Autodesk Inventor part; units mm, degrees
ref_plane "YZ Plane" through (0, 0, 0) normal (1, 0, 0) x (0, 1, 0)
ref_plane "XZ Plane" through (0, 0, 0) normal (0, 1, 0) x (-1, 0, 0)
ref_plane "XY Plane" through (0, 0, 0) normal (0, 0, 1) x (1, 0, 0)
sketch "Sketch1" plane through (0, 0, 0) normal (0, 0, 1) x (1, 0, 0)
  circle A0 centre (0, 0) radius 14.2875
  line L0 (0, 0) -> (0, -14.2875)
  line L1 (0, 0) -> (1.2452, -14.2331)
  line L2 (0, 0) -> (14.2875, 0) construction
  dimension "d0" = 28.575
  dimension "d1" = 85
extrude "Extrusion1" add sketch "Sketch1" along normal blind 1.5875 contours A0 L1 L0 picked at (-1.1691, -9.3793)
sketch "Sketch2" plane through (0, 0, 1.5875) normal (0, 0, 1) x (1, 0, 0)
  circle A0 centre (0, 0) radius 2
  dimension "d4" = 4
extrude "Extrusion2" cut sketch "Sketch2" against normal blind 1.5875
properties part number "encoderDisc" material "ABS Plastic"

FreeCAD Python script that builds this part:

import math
import FreeCAD as App
import Part
import Sketcher

V = App.Vector
Q = App.Units.Quantity

doc = App.newDocument("Part")
body = doc.addObject("PartDesign::Body", "Body")

sketch1 = body.newObject("Sketcher::SketchObject", "Sketch")
sketch1.AttachmentSupport = (doc.getObject("XY_Plane"), [""])
sketch1.MapMode = "FlatFace"
sketch1.addGeometry(Part.ArcOfCircle(Part.Circle(V(0, 0, 0), V(0, 0, 1), 14.2875), math.radians(-85.000139), math.radians(270)), False)
sketch1.addGeometry(Part.LineSegment(V(0, -14.2875, 0), V(0, 0, 0)), False)
sketch1.addGeometry(Part.LineSegment(V(0, 0, 0), V(1.2452, -14.2331, 0)), False)
sketch1.addConstraint(Sketcher.Constraint("Coincident", 0, 2, 1, 1))
sketch1.addConstraint(Sketcher.Constraint("Coincident", 1, 2, 2, 1))
sketch1.addConstraint(Sketcher.Constraint("Coincident", 2, 2, 0, 1))
sketch1.addConstraint(Sketcher.Constraint("Vertical", 1))
sketch1.addConstraint(Sketcher.Constraint("Coincident", 0, 3, -1, 1))
sketch1.addConstraint(Sketcher.Constraint("Coincident", 1, 2, -1, 1))
sketch1.addConstraint(Sketcher.Constraint("Angle", 2, Q("-85.0001 deg")))
sketch1.addConstraint(Sketcher.Constraint("Radius", 0, Q("0.5625 in")))
pad1 = body.newObject("PartDesign::Pad", "Pad")
pad1.Profile = sketch1
pad1.Length = Q("0.0625 in")

sketch2 = body.newObject("Sketcher::SketchObject", "Sketch001")
sketch2.AttachmentSupport = (doc.getObject("XY_Plane"), [""])
sketch2.MapMode = "FlatFace"
sketch2.AttachmentOffset = App.Placement(V(0, 0, 0.0625 * 25.4), App.Rotation())
sketch2.addGeometry(Part.Circle(V(0, 0, 0), V(0, 0, 1), 2), False)
sketch2.addConstraint(Sketcher.Constraint("Coincident", 0, 3, -1, 1))
sketch2.addConstraint(Sketcher.Constraint("Diameter", 0, Q("4 mm")))
pocket1 = body.newObject("PartDesign::Pocket", "Pocket")
pocket1.Profile = sketch2
pocket1.Length = Q("0.0625 in")

doc.recompute()
